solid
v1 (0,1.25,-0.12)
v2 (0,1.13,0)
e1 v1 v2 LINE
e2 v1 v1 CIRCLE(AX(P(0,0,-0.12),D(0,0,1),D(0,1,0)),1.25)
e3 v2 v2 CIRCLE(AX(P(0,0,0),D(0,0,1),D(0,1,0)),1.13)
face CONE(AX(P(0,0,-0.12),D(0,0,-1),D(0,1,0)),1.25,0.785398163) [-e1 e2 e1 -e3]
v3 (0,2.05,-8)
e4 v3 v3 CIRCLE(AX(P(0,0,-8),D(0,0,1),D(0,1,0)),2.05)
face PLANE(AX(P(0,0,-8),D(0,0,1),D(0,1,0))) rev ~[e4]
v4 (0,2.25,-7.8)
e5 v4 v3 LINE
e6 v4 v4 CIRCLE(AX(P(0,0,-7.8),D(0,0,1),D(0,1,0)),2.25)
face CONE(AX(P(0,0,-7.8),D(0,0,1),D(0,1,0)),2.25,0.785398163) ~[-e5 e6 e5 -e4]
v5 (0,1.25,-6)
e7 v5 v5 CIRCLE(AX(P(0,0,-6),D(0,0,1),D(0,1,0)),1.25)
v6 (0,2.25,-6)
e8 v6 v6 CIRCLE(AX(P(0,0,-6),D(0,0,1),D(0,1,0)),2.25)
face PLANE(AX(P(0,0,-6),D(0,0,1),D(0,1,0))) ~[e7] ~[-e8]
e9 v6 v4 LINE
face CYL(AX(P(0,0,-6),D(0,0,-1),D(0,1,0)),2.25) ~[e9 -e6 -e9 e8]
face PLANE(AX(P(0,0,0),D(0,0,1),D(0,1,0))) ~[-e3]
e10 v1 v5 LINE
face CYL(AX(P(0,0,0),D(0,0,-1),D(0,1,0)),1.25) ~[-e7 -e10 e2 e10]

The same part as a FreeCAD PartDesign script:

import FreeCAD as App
import Part
import Sketcher
from FreeCAD import Vector
Q = App.Units.Quantity

doc = App.newDocument("Part")
body = doc.addObject("PartDesign::Body", "Body")

# Sketch on YZ plane
sketch1 = body.newObject("Sketcher::SketchObject", "Sketch")
sketch1.AttachmentSupport = (doc.getObject("YZ_Plane"), [""])
sketch1.MapMode = "FlatFace"
sketch1.addGeometry([
    Part.LineSegment(Vector(1.13, 0, 0), Vector(0, 0, 0)),  # 0
    Part.LineSegment(Vector(0, 0, 0), Vector(0, -8, 0)),  # 1
    Part.LineSegment(Vector(0, -8, 0), Vector(2.05, -8, 0)),  # 2
    Part.LineSegment(Vector(2.05, -8, 0), Vector(2.25, -7.8, 0)),  # 3
    Part.LineSegment(Vector(2.25, -7.8, 0), Vector(2.25, -6, 0)),  # 4
    Part.LineSegment(Vector(2.25, -6, 0), Vector(1.25, -6, 0)),  # 5
    Part.LineSegment(Vector(1.25, -6, 0), Vector(1.25, -0.12, 0)),  # 6
    Part.LineSegment(Vector(1.25, -0.12, 0), Vector(1.13, 0, 0)),  # 7
], False)
sketch1.addConstraint([
    Sketcher.Constraint("Coincident", 0, 2, 1, 1),
    Sketcher.Constraint("Coincident", 1, 2, 2, 1),
    Sketcher.Constraint("Coincident", 2, 2, 3, 1),
    Sketcher.Constraint("Coincident", 3, 2, 4, 1),
    Sketcher.Constraint("Coincident", 4, 2, 5, 1),
    Sketcher.Constraint("Coincident", 5, 2, 6, 1),
    Sketcher.Constraint("Coincident", 6, 2, 7, 1),
    Sketcher.Constraint("Coincident", 7, 2, 0, 1),
    Sketcher.Constraint("Horizontal", 0),
    Sketcher.Constraint("Vertical", 1),
    Sketcher.Constraint("Horizontal", 2),
    Sketcher.Constraint("Vertical", 4),
    Sketcher.Constraint("Horizontal", 5),
    Sketcher.Constraint("Vertical", 6),
    Sketcher.Constraint("Coincident", 0, 2, -1, 1),
    Sketcher.Constraint("Perpendicular", 3, 7),
    Sketcher.Constraint("Angle", 3, Q("45 deg")),
    Sketcher.Constraint("DistanceY", 4, 2, -1, 1, Q("6 mm")),
    Sketcher.Constraint("DistanceY", 2, 2, 4, 2, Q("2 mm")),
    Sketcher.Constraint("DistanceX", 2, 2, 3, 2, Q("0.2 mm")),
    Sketcher.Constraint("DistanceX", 5, 2, 5, 1, Q("1 mm")),
    Sketcher.Constraint("DistanceX", -1, 1, 3, 2, Q("2.25 mm")),
    Sketcher.Constraint("DistanceY", 6, 2, -1, 1, Q("0.12 mm")),
])
revolution = body.newObject("PartDesign::Revolution", "Revolution")
revolution.Profile = sketch1
revolution.ReferenceAxis = (sketch1, ["V_Axis"])
revolution.Angle = 360

doc.recompute()
